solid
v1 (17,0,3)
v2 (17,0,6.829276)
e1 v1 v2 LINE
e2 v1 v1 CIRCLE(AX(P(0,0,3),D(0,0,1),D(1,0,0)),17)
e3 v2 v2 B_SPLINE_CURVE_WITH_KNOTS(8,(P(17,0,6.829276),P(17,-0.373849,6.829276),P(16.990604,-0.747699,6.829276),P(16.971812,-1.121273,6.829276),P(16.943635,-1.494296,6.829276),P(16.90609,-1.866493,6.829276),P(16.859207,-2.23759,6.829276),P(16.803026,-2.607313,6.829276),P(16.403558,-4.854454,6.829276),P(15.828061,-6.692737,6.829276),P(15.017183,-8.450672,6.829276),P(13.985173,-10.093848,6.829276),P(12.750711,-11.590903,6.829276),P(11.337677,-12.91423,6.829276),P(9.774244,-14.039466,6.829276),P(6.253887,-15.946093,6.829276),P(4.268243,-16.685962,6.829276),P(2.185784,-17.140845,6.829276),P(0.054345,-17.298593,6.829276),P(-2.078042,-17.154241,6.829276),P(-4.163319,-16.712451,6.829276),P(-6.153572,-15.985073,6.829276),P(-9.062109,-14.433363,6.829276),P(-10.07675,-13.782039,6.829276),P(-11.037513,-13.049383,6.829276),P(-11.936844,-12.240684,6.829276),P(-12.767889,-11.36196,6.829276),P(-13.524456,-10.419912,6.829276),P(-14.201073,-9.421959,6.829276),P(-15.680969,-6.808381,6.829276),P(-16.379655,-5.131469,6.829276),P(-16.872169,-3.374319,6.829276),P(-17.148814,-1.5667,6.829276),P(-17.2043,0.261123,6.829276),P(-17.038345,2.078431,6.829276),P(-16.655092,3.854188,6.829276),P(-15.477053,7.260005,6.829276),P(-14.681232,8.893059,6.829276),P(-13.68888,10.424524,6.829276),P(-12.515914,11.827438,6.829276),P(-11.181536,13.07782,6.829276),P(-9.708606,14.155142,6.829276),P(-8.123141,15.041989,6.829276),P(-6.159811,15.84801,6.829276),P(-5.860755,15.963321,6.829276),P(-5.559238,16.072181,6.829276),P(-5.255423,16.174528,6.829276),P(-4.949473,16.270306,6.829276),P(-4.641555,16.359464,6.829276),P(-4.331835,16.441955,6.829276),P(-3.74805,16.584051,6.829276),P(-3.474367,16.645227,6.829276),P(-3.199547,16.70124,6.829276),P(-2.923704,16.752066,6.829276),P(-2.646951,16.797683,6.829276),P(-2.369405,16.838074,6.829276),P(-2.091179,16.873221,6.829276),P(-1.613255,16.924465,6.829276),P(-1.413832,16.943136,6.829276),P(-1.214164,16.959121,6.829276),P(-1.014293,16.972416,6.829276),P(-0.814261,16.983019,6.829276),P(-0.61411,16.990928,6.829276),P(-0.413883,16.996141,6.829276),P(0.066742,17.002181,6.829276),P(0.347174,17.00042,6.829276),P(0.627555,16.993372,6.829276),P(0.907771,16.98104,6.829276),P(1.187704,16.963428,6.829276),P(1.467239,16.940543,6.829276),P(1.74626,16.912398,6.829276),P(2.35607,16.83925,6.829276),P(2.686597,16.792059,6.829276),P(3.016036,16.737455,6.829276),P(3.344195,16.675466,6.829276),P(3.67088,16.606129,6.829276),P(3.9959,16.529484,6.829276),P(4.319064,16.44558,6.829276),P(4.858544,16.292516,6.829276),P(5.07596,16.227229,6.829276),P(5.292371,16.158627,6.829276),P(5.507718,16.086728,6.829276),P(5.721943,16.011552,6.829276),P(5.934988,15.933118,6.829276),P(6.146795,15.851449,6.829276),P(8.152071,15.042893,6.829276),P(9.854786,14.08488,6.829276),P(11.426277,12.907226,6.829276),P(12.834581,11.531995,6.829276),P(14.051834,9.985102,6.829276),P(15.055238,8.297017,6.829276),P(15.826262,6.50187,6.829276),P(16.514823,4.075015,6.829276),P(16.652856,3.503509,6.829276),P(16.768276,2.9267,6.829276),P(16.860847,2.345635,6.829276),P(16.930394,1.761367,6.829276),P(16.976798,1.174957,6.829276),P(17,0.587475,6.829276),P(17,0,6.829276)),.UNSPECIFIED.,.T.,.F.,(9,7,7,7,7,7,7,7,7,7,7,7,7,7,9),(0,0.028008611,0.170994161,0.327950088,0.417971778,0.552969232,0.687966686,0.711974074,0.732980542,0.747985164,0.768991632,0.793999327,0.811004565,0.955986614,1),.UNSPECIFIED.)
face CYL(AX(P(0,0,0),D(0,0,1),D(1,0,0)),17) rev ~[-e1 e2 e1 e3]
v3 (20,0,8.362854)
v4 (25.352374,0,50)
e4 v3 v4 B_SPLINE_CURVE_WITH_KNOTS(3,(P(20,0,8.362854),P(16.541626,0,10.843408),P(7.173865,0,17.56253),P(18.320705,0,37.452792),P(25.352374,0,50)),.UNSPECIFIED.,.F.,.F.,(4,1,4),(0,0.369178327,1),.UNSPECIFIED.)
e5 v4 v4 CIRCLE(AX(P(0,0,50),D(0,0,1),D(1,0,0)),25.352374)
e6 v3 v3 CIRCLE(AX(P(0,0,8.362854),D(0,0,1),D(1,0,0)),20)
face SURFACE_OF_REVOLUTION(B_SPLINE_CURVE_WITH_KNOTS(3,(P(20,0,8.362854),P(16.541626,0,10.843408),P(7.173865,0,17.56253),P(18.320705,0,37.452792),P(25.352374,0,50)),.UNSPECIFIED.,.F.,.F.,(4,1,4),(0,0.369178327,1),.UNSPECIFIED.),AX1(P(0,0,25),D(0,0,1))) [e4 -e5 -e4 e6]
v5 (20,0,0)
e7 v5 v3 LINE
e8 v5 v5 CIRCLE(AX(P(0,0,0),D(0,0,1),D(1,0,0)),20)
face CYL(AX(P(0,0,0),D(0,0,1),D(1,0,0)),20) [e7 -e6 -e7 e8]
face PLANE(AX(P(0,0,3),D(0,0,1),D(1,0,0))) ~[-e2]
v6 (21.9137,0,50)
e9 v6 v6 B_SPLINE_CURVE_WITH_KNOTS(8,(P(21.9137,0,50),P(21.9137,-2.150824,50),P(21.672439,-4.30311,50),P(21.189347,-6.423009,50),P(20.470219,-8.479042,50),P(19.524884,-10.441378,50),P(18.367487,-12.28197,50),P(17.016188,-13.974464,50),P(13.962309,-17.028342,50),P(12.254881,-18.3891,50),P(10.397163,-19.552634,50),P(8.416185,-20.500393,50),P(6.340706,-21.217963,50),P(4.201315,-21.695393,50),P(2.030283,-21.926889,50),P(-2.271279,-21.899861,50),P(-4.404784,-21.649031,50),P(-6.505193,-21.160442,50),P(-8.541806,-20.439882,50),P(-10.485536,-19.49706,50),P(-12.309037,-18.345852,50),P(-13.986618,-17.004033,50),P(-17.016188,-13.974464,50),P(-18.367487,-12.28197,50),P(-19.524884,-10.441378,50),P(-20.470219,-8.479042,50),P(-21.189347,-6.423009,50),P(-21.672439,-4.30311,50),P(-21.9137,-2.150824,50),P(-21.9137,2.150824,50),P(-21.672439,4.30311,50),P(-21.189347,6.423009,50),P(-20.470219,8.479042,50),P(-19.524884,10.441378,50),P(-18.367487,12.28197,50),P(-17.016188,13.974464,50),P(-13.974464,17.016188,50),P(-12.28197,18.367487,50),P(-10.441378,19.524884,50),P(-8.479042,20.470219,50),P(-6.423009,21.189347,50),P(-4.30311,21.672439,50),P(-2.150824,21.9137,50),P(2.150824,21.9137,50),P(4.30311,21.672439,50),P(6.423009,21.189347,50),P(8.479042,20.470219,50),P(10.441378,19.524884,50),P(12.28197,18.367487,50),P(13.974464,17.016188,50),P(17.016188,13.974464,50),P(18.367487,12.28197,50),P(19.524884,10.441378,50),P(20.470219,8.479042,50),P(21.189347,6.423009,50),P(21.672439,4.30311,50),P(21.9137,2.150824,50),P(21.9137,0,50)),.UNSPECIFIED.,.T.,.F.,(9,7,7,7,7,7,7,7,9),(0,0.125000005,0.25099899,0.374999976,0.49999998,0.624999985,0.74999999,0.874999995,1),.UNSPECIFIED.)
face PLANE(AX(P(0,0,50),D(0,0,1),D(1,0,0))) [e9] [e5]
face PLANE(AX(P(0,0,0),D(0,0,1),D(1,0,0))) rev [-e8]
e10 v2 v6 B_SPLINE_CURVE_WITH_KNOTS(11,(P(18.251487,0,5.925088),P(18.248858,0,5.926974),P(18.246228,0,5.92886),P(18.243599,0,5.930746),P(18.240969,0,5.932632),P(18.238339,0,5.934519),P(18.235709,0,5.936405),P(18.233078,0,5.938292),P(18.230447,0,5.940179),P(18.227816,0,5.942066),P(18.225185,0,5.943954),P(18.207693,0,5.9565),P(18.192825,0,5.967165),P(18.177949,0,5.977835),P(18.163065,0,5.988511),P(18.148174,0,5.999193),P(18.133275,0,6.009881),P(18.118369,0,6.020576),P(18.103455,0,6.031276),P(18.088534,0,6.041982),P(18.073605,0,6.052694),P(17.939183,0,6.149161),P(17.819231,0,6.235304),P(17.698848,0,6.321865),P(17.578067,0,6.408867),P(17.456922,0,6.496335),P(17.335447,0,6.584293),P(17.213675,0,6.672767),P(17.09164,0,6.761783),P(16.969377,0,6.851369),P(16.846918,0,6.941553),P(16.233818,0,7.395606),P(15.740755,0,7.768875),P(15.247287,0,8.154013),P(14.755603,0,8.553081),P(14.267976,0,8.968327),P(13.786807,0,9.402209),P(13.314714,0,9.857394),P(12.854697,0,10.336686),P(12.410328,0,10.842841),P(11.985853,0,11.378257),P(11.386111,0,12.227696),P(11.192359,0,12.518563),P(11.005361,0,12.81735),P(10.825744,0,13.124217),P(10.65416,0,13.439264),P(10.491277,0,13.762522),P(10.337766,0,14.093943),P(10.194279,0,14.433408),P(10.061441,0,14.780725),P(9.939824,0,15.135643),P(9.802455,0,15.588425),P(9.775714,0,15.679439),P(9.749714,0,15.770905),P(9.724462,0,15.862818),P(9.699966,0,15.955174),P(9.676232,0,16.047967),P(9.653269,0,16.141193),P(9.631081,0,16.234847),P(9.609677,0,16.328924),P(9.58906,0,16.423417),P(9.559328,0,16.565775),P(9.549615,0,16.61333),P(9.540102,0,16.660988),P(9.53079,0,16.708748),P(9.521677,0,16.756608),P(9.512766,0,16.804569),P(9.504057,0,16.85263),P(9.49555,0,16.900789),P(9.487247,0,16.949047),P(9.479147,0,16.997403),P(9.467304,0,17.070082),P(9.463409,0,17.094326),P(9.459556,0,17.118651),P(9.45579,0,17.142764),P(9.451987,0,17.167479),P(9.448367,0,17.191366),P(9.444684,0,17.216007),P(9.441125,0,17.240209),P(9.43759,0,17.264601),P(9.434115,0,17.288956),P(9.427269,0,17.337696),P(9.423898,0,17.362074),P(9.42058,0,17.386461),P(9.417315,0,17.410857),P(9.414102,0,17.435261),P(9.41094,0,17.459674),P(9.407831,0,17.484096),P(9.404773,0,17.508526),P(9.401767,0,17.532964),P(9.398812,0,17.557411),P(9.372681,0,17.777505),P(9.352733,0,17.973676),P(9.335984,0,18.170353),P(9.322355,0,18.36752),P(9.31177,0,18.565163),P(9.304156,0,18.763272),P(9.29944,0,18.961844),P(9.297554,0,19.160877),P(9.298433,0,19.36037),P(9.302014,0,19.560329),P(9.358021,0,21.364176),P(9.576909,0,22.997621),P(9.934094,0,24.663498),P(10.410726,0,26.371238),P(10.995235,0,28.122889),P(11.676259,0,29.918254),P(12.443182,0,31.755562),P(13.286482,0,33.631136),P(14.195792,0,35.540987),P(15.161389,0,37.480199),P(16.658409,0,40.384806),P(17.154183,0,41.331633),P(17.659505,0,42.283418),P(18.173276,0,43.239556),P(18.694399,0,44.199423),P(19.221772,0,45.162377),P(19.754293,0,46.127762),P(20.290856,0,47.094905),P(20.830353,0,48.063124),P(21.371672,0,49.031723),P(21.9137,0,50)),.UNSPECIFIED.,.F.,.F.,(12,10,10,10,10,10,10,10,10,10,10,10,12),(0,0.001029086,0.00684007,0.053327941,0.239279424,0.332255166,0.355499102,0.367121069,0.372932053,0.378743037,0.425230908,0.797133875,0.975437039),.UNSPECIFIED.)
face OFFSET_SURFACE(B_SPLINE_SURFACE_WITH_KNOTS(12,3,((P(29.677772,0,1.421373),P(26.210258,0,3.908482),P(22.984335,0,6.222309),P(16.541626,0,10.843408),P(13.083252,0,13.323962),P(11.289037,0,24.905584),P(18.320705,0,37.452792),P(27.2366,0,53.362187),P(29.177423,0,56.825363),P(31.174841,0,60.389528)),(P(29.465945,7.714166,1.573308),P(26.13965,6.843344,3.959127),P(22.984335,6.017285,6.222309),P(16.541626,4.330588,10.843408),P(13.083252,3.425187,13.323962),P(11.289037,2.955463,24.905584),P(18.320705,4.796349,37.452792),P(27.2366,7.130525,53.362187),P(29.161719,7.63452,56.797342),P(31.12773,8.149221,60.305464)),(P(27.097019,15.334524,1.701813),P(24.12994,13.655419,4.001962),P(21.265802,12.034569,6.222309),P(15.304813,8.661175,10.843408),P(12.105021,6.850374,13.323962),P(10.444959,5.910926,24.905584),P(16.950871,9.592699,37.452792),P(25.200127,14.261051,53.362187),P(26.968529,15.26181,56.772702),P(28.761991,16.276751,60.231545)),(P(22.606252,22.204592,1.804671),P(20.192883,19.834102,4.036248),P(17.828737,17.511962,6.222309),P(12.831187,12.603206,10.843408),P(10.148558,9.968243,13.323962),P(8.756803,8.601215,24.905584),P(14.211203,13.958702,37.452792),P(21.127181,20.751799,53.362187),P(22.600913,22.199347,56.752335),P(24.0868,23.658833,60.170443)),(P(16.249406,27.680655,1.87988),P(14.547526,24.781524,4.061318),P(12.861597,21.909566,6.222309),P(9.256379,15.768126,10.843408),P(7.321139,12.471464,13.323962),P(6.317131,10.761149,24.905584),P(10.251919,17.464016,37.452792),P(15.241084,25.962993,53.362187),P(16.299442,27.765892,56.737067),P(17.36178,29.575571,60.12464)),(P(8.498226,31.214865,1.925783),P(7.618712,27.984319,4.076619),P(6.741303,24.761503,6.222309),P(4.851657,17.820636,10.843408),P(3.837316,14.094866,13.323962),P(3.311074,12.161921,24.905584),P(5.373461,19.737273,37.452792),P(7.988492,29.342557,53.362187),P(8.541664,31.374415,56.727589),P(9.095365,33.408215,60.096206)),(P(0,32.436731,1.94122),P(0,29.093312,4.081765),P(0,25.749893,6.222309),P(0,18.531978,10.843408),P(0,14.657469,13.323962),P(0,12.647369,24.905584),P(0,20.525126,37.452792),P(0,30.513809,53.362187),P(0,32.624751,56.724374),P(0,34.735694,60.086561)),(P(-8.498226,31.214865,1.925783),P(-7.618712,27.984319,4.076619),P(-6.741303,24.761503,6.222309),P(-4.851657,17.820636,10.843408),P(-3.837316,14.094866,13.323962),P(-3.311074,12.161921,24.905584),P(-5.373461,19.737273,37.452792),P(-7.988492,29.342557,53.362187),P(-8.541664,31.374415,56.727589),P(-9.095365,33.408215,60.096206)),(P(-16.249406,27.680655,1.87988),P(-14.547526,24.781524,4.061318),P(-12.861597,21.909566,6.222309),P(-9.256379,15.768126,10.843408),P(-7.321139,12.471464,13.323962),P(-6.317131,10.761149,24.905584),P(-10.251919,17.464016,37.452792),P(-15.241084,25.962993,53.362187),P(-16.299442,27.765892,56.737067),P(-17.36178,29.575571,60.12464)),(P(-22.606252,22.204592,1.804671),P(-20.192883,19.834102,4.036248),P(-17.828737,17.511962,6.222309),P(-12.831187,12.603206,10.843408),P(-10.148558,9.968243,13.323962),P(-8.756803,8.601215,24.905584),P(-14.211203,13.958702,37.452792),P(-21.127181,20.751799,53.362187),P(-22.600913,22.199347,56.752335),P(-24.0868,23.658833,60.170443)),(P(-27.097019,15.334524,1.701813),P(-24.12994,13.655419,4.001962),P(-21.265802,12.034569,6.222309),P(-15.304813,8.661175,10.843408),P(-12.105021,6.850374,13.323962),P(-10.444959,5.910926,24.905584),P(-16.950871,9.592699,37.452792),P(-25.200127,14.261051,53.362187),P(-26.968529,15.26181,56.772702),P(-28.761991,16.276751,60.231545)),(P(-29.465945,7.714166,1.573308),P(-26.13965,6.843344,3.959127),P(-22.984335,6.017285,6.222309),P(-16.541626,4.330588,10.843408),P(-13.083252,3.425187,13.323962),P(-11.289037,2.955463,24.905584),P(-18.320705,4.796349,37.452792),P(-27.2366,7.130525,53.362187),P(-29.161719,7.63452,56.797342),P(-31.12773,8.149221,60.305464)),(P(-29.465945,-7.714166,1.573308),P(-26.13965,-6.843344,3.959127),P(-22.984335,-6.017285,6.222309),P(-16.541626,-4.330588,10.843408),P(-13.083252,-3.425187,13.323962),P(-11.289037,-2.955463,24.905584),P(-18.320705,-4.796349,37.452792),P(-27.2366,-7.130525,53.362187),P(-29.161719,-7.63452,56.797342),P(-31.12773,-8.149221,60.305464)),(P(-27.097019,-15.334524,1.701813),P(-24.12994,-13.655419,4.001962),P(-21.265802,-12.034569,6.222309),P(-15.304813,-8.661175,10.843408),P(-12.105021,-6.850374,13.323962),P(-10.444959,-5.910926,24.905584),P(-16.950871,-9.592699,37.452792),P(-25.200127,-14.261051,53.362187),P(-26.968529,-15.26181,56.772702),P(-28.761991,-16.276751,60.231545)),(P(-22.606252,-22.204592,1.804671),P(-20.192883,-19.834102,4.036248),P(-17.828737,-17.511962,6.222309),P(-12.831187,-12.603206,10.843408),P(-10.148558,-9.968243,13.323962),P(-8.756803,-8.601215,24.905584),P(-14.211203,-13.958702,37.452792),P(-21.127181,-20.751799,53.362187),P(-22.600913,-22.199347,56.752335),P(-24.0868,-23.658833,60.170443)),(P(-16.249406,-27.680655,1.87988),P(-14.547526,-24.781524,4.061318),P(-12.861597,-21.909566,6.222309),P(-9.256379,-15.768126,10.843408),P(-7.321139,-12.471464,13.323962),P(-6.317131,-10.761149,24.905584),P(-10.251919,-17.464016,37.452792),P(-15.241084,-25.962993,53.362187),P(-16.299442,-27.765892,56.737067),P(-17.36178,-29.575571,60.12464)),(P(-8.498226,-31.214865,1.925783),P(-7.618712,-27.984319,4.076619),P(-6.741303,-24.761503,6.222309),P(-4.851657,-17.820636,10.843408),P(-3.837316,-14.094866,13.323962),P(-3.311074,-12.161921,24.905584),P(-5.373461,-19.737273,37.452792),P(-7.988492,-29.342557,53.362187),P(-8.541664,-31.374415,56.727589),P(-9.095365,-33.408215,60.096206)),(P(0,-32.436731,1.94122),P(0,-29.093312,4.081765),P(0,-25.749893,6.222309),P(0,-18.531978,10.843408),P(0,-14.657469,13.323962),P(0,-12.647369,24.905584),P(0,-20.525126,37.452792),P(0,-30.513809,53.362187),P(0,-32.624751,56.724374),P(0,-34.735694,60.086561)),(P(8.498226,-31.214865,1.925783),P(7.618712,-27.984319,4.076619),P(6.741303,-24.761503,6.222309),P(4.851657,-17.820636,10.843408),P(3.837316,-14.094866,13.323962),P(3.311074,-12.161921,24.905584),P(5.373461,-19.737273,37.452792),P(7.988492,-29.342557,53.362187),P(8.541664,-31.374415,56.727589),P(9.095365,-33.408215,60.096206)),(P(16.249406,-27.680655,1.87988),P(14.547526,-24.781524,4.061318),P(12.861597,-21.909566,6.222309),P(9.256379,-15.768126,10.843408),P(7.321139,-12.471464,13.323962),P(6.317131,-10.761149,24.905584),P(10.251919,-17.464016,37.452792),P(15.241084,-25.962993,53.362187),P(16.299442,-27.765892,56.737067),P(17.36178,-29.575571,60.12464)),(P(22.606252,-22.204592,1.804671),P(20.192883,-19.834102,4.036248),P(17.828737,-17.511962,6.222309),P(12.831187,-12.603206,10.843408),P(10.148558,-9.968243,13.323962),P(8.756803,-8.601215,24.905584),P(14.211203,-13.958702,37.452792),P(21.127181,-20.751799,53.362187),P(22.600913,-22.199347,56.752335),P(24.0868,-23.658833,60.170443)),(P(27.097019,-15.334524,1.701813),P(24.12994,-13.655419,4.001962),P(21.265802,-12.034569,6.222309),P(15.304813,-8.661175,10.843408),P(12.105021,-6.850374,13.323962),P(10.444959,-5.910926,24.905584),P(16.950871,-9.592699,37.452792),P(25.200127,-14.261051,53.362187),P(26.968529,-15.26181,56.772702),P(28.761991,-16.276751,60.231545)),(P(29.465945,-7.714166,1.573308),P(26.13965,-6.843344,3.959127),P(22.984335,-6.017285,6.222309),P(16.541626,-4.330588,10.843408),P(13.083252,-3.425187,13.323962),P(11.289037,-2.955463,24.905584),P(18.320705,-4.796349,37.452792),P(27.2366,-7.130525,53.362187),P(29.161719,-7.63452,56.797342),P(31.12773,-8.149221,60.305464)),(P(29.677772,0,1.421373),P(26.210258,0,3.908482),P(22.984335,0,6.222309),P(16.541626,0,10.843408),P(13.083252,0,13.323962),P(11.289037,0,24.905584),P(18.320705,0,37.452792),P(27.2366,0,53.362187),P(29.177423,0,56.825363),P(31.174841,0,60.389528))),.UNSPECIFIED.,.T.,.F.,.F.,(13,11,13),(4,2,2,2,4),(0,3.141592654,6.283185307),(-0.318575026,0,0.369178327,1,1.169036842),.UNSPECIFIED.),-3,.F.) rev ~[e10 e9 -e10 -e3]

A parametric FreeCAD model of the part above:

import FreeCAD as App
import Part
import Sketcher

V = App.Vector


def faces_at(feature, points):
    """Names of the faces that lie closest to the given points."""
    faces = feature.Shape.Faces
    near = lambda p: min(range(len(faces)), key=lambda i: faces[i].distToShape(Part.Vertex(*p))[0])
    return sorted({f"Face{near(p) + 1}" for p in points})

doc = App.newDocument("Part")
body = doc.addObject("PartDesign::Body", "Body")

# Sketch on XZ plane
sketch1 = body.newObject("Sketcher::SketchObject", "Sketch")
sketch1.AttachmentSupport = (doc.getObject("XZ_Plane"), [""])
sketch1.MapMode = "FlatFace"
sketch1.addGeometry(Part.LineSegment(V(0, 50, 0), V(0, 0, 0)), False)
sketch1.addGeometry(Part.LineSegment(V(0, 0, 0), V(20, 0, 0)), False)
sketch1.addGeometry(Part.LineSegment(V(20, 0, 0), V(20, 8.362854, 0)), False)
sketch1.addGeometry(Part.BSplineCurve([V(20, 8.362854, 0), V(16.541626, 10.843408, 0), V(7.173865, 17.56253, 0), V(18.320705, 37.452792, 0), V(25.352374, 50, 0)], [4, 1, 4], [0, 0.369178327, 1], False, 3, [1, 1, 1, 1, 1], False), False)
sketch1.addGeometry(Part.LineSegment(V(25.352374, 50, 0), V(0, 50, 0)), False)
sketch1.addConstraint(Sketcher.Constraint("Block", 3))
sketch1.addConstraint(Sketcher.Constraint("Coincident", 0, 2, 1, 1))
sketch1.addConstraint(Sketcher.Constraint("Coincident", 1, 2, 2, 1))
sketch1.addConstraint(Sketcher.Constraint("Coincident", 2, 2, 3, 1))
sketch1.addConstraint(Sketcher.Constraint("Coincident", 3, 2, 4, 1))
sketch1.addConstraint(Sketcher.Constraint("Coincident", 4, 2, 0, 1))
sketch1.addConstraint(Sketcher.Constraint("Vertical", 0))
sketch1.addConstraint(Sketcher.Constraint("Horizontal", 1))
sketch1.addConstraint(Sketcher.Constraint("Vertical", 2))
sketch1.addConstraint(Sketcher.Constraint("Horizontal", 4))
sketch1.addConstraint(Sketcher.Constraint("Coincident", 0, 2, -1, 1))
revolution = body.newObject("PartDesign::Revolution", "Revolution")
revolution.Profile = sketch1
revolution.ReferenceAxis = (sketch1, ["V_Axis"])
revolution.Angle = 360
doc.recompute()

thickness = body.newObject("PartDesign::Thickness", "Thickness")
thickness.Base = (revolution, faces_at(revolution, [(0, 0, 50)]))
thickness.Value = 3
thickness.Reversed = True
thickness.Join = "Arc"

doc.recompute()
